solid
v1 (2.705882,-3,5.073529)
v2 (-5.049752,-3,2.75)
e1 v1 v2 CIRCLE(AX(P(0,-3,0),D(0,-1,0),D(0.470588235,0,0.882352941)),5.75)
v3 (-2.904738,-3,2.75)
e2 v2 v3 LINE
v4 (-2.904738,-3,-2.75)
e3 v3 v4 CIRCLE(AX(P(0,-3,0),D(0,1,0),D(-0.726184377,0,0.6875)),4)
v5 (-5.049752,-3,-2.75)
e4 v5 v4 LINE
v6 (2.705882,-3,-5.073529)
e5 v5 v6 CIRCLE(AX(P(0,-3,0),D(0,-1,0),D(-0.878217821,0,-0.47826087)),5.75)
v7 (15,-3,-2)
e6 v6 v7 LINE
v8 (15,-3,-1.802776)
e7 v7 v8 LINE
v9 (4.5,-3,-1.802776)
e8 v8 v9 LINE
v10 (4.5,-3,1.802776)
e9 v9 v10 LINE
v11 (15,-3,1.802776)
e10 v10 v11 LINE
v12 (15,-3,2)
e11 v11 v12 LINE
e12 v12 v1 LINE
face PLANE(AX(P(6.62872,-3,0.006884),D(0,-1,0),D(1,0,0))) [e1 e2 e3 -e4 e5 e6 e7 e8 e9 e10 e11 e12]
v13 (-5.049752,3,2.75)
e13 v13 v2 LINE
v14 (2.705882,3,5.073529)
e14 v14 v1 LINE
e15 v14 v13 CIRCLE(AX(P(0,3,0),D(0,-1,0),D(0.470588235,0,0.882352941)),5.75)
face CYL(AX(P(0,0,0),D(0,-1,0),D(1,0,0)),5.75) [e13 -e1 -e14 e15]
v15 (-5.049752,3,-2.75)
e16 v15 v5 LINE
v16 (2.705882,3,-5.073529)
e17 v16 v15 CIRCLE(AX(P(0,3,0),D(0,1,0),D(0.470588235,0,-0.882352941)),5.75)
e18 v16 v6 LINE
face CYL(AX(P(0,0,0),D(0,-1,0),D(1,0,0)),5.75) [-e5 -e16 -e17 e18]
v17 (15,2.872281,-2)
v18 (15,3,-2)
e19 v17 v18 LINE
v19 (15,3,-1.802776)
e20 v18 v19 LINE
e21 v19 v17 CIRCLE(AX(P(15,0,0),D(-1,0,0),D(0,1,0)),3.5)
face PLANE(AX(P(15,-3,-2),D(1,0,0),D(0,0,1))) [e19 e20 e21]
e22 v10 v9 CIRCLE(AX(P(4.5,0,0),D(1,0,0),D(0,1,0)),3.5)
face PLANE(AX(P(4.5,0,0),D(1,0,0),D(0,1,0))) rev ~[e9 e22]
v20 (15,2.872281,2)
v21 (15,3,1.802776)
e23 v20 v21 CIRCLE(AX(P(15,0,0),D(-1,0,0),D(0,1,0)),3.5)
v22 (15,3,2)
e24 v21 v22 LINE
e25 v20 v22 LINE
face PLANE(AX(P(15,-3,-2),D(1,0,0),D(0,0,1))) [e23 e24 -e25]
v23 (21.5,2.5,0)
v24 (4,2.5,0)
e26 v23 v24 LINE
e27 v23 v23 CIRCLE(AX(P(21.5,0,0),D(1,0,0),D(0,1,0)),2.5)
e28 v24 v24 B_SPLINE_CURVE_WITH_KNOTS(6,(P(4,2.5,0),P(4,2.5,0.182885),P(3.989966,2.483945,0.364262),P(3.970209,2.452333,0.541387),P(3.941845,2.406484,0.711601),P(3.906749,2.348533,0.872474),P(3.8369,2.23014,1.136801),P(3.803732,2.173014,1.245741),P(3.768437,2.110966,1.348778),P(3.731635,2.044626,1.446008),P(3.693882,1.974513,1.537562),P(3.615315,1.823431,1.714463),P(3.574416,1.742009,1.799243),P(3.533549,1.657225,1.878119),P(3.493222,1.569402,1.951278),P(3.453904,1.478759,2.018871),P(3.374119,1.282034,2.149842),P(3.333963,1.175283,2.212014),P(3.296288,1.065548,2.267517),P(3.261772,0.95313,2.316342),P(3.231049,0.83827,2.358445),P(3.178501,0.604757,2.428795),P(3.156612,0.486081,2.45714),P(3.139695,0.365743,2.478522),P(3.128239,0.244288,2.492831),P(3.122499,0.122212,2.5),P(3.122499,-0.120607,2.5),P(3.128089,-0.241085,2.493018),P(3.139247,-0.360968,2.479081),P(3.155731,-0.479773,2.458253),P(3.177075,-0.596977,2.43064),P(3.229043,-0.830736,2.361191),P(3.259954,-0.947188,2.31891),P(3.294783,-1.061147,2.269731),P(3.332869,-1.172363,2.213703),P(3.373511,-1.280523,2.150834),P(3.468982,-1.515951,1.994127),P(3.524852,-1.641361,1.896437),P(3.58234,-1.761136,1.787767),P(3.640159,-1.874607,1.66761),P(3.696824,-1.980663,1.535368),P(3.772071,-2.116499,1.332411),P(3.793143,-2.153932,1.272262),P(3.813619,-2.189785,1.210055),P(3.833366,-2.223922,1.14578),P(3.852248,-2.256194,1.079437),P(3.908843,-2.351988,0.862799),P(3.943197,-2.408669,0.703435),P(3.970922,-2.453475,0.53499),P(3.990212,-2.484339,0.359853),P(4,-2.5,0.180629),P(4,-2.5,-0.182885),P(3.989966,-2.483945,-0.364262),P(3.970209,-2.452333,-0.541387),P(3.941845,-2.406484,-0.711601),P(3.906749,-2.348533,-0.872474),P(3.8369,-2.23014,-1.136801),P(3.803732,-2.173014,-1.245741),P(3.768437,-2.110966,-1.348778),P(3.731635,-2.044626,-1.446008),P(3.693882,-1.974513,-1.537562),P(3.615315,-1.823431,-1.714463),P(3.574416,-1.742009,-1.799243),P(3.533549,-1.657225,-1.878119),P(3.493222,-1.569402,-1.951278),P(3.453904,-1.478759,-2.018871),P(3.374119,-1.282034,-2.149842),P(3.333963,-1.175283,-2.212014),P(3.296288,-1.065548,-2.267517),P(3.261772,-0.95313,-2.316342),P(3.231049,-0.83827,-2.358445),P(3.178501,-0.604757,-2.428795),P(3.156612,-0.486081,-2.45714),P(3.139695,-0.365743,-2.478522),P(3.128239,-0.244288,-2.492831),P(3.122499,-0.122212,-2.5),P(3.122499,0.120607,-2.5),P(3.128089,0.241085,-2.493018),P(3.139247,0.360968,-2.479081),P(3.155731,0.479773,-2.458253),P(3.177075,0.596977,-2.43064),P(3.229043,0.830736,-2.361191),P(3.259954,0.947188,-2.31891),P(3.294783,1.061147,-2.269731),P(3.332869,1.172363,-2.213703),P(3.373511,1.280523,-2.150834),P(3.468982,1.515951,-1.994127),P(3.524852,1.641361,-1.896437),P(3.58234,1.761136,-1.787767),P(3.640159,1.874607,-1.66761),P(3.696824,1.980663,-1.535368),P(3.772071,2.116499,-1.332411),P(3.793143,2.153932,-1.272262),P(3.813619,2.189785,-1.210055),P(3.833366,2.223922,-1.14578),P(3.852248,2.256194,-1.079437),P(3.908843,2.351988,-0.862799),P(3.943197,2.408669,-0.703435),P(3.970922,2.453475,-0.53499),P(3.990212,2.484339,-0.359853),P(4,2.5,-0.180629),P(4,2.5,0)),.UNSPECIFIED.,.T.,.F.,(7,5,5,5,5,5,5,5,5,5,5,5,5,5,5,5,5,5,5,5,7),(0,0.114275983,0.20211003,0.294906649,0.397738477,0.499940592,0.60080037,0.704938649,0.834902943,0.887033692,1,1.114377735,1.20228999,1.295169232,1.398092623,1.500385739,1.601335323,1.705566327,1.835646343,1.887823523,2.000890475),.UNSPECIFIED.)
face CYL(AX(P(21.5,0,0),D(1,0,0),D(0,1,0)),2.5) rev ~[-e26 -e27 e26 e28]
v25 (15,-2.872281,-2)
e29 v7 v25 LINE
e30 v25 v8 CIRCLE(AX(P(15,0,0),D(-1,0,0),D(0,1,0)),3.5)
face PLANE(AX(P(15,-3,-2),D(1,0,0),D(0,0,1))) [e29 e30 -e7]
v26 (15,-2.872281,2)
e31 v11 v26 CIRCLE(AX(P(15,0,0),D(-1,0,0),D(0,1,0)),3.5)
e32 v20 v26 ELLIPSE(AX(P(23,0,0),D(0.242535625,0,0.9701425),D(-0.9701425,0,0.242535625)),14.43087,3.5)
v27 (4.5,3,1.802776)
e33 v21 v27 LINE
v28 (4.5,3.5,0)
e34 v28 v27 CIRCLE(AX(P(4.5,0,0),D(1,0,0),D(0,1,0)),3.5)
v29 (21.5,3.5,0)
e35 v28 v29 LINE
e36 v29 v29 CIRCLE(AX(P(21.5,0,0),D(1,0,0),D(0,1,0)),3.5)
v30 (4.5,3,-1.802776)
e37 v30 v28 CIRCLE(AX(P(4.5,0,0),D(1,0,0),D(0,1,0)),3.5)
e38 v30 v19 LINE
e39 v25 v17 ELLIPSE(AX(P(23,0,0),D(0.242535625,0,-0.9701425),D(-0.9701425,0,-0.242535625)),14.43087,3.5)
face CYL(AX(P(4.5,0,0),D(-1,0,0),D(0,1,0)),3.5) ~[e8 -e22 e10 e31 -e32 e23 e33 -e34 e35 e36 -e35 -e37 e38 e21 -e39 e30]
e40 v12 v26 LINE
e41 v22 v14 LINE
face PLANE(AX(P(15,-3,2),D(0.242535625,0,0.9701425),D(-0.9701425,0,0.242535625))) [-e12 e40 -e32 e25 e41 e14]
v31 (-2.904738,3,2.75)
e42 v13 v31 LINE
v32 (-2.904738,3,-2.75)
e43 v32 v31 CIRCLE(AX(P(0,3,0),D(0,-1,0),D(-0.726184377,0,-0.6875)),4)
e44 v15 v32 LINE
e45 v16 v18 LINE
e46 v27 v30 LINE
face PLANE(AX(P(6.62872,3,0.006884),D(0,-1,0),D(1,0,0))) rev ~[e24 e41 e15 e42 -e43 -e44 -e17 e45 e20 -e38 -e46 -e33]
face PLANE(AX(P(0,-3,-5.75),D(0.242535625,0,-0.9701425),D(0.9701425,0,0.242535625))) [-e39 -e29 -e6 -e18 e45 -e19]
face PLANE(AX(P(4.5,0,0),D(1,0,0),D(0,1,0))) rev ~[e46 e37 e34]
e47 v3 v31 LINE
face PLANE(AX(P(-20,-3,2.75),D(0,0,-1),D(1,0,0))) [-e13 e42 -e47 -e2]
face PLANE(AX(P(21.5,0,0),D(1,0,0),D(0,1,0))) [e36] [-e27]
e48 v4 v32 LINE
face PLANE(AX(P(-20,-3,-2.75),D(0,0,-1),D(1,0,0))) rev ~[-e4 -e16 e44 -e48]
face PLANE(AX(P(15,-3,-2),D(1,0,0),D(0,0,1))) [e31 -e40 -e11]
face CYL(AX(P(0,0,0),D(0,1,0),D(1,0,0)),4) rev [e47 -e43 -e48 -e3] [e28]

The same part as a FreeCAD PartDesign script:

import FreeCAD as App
import Part
import Sketcher
from FreeCAD import Vector

doc = App.newDocument("Part")
body = doc.addObject("PartDesign::Body", "Body")

sketch1 = body.newObject("Sketcher::SketchObject", "Sketch")
sketch1.AttachmentSupport = (doc.getObject("XZ_Plane"), [""])
sketch1.MapMode = "FlatFace"
sketch1.addGeometry(Part.Circle(Vector(0, 0, 0), Vector(0, 0, 1), 5.8), False)
sketch1.addGeometry(Part.Circle(Vector(0, 0, 0), Vector(0, 0, 1), 4), False)
sketch1.addConstraint(Sketcher.Constraint("Coincident", 0, 3, -1, 1))
sketch1.addConstraint(Sketcher.Constraint("Coincident", 1, 3, -1, 1))
sketch1.addConstraint(Sketcher.Constraint("Diameter", 1, 8.0))
sketch1.addConstraint(Sketcher.Constraint("Diameter", 0, 11.5))
pad1 = body.newObject("PartDesign::Pad", "Pad")
pad1.Profile = sketch1
pad1.Length = 6
pad1.Midplane = True

sketch2 = body.newObject("Sketcher::SketchObject", "Sketch001")
sketch2.AttachmentSupport = (doc.getObject("YZ_Plane"), [""])
sketch2.MapMode = "FlatFace"
sketch2.AttachmentOffset = App.Placement(Vector(0, 0, 4.5), App.Rotation())
sketch2.addGeometry(Part.Circle(Vector(0, 0, 0), Vector(0, 0, 1), 3.5), False)
sketch2.addConstraint(Sketcher.Constraint("Coincident", 0, 3, -1, 1))
sketch2.addConstraint(Sketcher.Constraint("Diameter", 0, 7.0))
pad2 = body.newObject("PartDesign::Pad", "Pad001")
pad2.Profile = sketch2
pad2.Length = 17

sketch3 = body.newObject("Sketcher::SketchObject", "Sketch002")
sketch3.AttachmentSupport = (doc.getObject("XZ_Plane"), [""])
sketch3.MapMode = "FlatFace"
sketch3.AttachmentOffset = App.Placement(Vector(0, 0, 3), App.Rotation())
sketch3.addGeometry(Part.LineSegment(Vector(-20, 3, 0), Vector(-20, -3, 0)), False)
sketch3.addGeometry(Part.LineSegment(Vector(-20, -3, 0), Vector(0, -3, 0)), False)
sketch3.addGeometry(Part.LineSegment(Vector(0, -3, 0), Vector(0, 3, 0)), False)
sketch3.addGeometry(Part.LineSegment(Vector(0, 3, 0), Vector(-20, 3, 0)), False)
sketch3.addConstraint(Sketcher.Constraint("Coincident", 0, 2, 1, 1))
sketch3.addConstraint(Sketcher.Constraint("Coincident", 1, 2, 2, 1))
sketch3.addConstraint(Sketcher.Constraint("Coincident", 2, 2, 3, 1))
sketch3.addConstraint(Sketcher.Constraint("Coincident", 3, 2, 0, 1))
sketch3.addConstraint(Sketcher.Constraint("Vertical", 0))
sketch3.addConstraint(Sketcher.Constraint("Horizontal", 1))
sketch3.addConstraint(Sketcher.Constraint("Vertical", 2))
sketch3.addConstraint(Sketcher.Constraint("Horizontal", 3))
sketch3.addConstraint(Sketcher.Constraint("Symmetric", 1, 2, 2, 2, -1, 1))
sketch3.addConstraint(Sketcher.Constraint("DistanceX", 1, 1, 1, 2, 20.0))
sketch3.addConstraint(Sketcher.Constraint("DistanceY", 0, 2, 0, 1, 5.5))
pocket1 = body.newObject("PartDesign::Pocket", "Pocket")
pocket1.Profile = sketch3
pocket1.Length = 25

sketch4 = body.newObject("Sketcher::SketchObject", "Sketch003")
sketch4.AttachmentSupport = (doc.getObject("XZ_Plane"), [""])
sketch4.MapMode = "FlatFace"
sketch4.AttachmentOffset = App.Placement(Vector(0, 0, 3), App.Rotation())
sketch4.addGeometry(Part.LineSegment(Vector(15, 2, 0), Vector(0, 5.8, 0)), False)
sketch4.addGeometry(Part.LineSegment(Vector(0, 5.8, 0), Vector(4.9, 1.1, 0)), False)
sketch4.addGeometry(Part.LineSegment(Vector(4.9, 1.1, 0), Vector(4.9, -1, 0)), False)
sketch4.addGeometry(Part.LineSegment(Vector(4.9, -1, 0), Vector(0, -5.8, 0)), False)
sketch4.addGeometry(Part.LineSegment(Vector(0, -5.8, 0), Vector(15, -2, 0)), False)
sketch4.addGeometry(Part.LineSegment(Vector(15, -2, 0), Vector(15, 2, 0)), False)
sketch4.addConstraint(Sketcher.Constraint("Coincident", 0, 2, 1, 1))
sketch4.addConstraint(Sketcher.Constraint("Coincident", 1, 2, 2, 1))
sketch4.addConstraint(Sketcher.Constraint("Coincident", 2, 2, 3, 1))
sketch4.addConstraint(Sketcher.Constraint("Coincident", 3, 2, 4, 1))
sketch4.addConstraint(Sketcher.Constraint("Coincident", 4, 2, 5, 1))
sketch4.addConstraint(Sketcher.Constraint("Coincident", 5, 2, 0, 1))
sketch4.addConstraint(Sketcher.Constraint("Vertical", 2))
sketch4.addConstraint(Sketcher.Constraint("Vertical", 5))
sketch4.addConstraint(Sketcher.Constraint("Symmetric", 0, 2, 3, 2, -1, 1))
sketch4.addConstraint(Sketcher.Constraint("PointOnObject", 0, 2, -2))
sketch4.addConstraint(Sketcher.Constraint("Equal", 0, 4))
sketch4.addConstraint(Sketcher.Constraint("DistanceY", 5, 1, 5, 2, 4.0))
sketch4.addConstraint(Sketcher.Constraint("DistanceX", -1, 1, 4, 2, 15.0))
sketch4.addConstraint(Sketcher.Constraint("DistanceY", 3, 2, 0, 2, 11.5))
sketch4.addConstraint(Sketcher.Constraint("Distance", 1, 6.727588))
sketch4.addConstraint(Sketcher.Constraint("DistanceY", 2, 2, 2, 1, 2.086645))
sketch4.addConstraint(Sketcher.Constraint("DistanceY", -1, 1, 1, 2, 1.127019))
pad3 = body.newObject("PartDesign::Pad", "Pad002")
pad3.Profile = sketch4
pad3.Length = 6
pad3.Reversed = True

sketch5 = body.newObject("Sketcher::SketchObject", "Sketch004")
sketch5.AttachmentSupport = (doc.getObject("YZ_Plane"), [""])
sketch5.MapMode = "FlatFace"
sketch5.AttachmentOffset = App.Placement(Vector(0, 0, 21.5), App.Rotation())
sketch5.addGeometry(Part.Circle(Vector(0, 0, 0), Vector(0, 0, 1), 2.5), False)
sketch5.addConstraint(Sketcher.Constraint("Coincident", 0, 3, -1, 1))
sketch5.addConstraint(Sketcher.Constraint("Diameter", 0, 5.0))
pocket2 = body.newObject("PartDesign::Pocket", "Pocket001")
pocket2.Profile = sketch5
pocket2.Length = 25

doc.recompute()
